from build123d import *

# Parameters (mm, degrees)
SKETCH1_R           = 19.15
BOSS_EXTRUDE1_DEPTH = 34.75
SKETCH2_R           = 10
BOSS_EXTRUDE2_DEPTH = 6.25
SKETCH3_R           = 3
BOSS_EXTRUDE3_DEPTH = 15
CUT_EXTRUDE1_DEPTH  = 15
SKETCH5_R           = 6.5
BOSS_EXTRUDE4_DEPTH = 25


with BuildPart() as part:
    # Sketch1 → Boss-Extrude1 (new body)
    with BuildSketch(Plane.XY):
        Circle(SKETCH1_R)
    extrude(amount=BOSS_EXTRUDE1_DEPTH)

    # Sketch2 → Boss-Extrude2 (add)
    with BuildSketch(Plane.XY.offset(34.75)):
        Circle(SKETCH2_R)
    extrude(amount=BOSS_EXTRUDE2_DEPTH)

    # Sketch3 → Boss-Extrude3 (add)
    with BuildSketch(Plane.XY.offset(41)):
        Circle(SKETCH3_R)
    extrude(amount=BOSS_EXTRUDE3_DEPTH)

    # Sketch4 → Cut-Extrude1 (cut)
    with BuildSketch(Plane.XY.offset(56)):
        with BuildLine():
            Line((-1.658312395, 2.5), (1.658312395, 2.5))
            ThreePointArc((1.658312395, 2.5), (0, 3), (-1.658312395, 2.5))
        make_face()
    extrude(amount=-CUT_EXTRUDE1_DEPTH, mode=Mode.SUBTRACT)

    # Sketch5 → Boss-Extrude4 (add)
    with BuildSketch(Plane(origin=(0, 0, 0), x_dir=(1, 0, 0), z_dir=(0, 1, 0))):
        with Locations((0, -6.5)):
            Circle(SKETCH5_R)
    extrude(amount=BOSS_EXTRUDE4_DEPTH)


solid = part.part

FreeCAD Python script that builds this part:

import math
import FreeCAD as App
import Part
import Sketcher

V = App.Vector

doc = App.newDocument("Part")
params = doc.addObject("Spreadsheet::Sheet", "Params")
for row, (alias, value) in enumerate([
    ("sketch1_diameter", "38.3 mm"),
    ("pad1_length", "34.75 mm"),
    ("sketch2_diameter", "20 mm"),
    ("pad2_length", "6.25 mm"),
    ("sketch3_diameter", "6 mm"),
    ("pad3_length", "15 mm"),
    ("sketch4_radius", "3 mm"),
    ("pocket1_length", "15 mm"),
    ("sketch5_diameter", "13 mm"),
    ("pad4_length", "25 mm"),
], start=1):
    params.set(f"A{row}", alias)
    params.set(f"B{row}", "=" + value)
    params.setAlias(f"B{row}", alias)

body = doc.addObject("PartDesign::Body", "Body")

# Sketch on XY plane
sketch1 = body.newObject("Sketcher::SketchObject", "Sketch")
sketch1.AttachmentSupport = (doc.getObject("XY_Plane"), [""])
sketch1.MapMode = "FlatFace"
sketch1.addGeometry(Part.Circle(V(0, 0, 0), V(0, 0, 1), 19), False)
sketch1.addConstraint([
    Sketcher.Constraint("Coincident", 0, 3, -1, 1),
    Sketcher.Constraint("Diameter", 0, 38.3),
])
sketch1.setExpression("Constraints[1]", "Params.sketch1_diameter")
pad1 = body.newObject("PartDesign::Pad", "Pad")
pad1.Profile = sketch1
pad1.setExpression("Length", "Params.pad1_length")

# Sketch on XY plane
sketch2 = body.newObject("Sketcher::SketchObject", "Sketch001")
sketch2.AttachmentSupport = (doc.getObject("XY_Plane"), [""])
sketch2.MapMode = "FlatFace"
sketch2.AttachmentOffset = App.Placement(V(0, 0, 34.75), App.Rotation())
sketch2.addGeometry(Part.Circle(V(0, 0, 0), V(0, 0, 1), 10), False)
sketch2.addConstraint([
    Sketcher.Constraint("Coincident", 0, 3, -1, 1),
    Sketcher.Constraint("Diameter", 0, 20.0),
])
sketch2.setExpression("Constraints[1]", "Params.sketch2_diameter")
pad2 = body.newObject("PartDesign::Pad", "Pad001")
pad2.Profile = sketch2
pad2.setExpression("Length", "Params.pad2_length")

# Sketch on XY plane
sketch3 = body.newObject("Sketcher::SketchObject", "Sketch002")
sketch3.AttachmentSupport = (doc.getObject("XY_Plane"), [""])
sketch3.MapMode = "FlatFace"
sketch3.AttachmentOffset = App.Placement(V(0, 0, 41), App.Rotation())
sketch3.addGeometry(Part.Circle(V(0, 0, 0), V(0, 0, 1), 3), False)
sketch3.addConstraint([
    Sketcher.Constraint("Coincident", 0, 3, -1, 1),
    Sketcher.Constraint("Diameter", 0, 6.0),
])
sketch3.setExpression("Constraints[1]", "Params.sketch3_diameter")
pad3 = body.newObject("PartDesign::Pad", "Pad002")
pad3.Profile = sketch3
pad3.setExpression("Length", "Params.pad3_length")

# Sketch on XY plane
sketch4 = body.newObject("Sketcher::SketchObject", "Sketch003")
sketch4.AttachmentSupport = (doc.getObject("XY_Plane"), [""])
sketch4.MapMode = "FlatFace"
sketch4.AttachmentOffset = App.Placement(V(0, 0, 56), App.Rotation())
sketch4.addGeometry([
    Part.LineSegment(V(-1.7, 2.5, 0), V(1.7, 2.5, 0)),
    Part.ArcOfCircle(Part.Circle(V(0, 0, 0), V(0, 0, 1), 3), math.radians(56), math.radians(124)),
], False)
sketch4.addConstraint([
    Sketcher.Constraint("Coincident", 0, 1, 1, 2),
    Sketcher.Constraint("Coincident", 1, 1, 0, 2),
    Sketcher.Constraint("Horizontal", 0),
    Sketcher.Constraint("Coincident", 1, 3, -1, 1),
    Sketcher.Constraint("Radius", 1, 3.0),
    Sketcher.Constraint("DistanceY", -1, 1, 0, 1, 2.5),
])
sketch4.setExpression("Constraints[4]", "Params.sketch4_radius")
pocket1 = body.newObject("PartDesign::Pocket", "Pocket")
pocket1.Profile = sketch4
pocket1.setExpression("Length", "Params.pocket1_length")

# Sketch on XZ plane
sketch5 = body.newObject("Sketcher::SketchObject", "Sketch004")
sketch5.AttachmentSupport = (doc.getObject("XZ_Plane"), [""])
sketch5.MapMode = "FlatFace"
sketch5.addGeometry(Part.Circle(V(0, 6, 0), V(0, 0, 1), 6), False)
sketch5.addConstraint([
    Sketcher.Constraint("PointOnObject", 0, 3, -2),
    Sketcher.Constraint("Diameter", 0, 13.0),
    Sketcher.Constraint("DistanceY", -1, 1, 0, 3, 6.5),
])
sketch5.setExpression("Constraints[1]", "Params.sketch5_diameter")
pad4 = body.newObject("PartDesign::Pad", "Pad003")
pad4.Profile = sketch5
pad4.setExpression("Length", "Params.pad4_length")
pad4.Reversed = True

doc.recompute()
